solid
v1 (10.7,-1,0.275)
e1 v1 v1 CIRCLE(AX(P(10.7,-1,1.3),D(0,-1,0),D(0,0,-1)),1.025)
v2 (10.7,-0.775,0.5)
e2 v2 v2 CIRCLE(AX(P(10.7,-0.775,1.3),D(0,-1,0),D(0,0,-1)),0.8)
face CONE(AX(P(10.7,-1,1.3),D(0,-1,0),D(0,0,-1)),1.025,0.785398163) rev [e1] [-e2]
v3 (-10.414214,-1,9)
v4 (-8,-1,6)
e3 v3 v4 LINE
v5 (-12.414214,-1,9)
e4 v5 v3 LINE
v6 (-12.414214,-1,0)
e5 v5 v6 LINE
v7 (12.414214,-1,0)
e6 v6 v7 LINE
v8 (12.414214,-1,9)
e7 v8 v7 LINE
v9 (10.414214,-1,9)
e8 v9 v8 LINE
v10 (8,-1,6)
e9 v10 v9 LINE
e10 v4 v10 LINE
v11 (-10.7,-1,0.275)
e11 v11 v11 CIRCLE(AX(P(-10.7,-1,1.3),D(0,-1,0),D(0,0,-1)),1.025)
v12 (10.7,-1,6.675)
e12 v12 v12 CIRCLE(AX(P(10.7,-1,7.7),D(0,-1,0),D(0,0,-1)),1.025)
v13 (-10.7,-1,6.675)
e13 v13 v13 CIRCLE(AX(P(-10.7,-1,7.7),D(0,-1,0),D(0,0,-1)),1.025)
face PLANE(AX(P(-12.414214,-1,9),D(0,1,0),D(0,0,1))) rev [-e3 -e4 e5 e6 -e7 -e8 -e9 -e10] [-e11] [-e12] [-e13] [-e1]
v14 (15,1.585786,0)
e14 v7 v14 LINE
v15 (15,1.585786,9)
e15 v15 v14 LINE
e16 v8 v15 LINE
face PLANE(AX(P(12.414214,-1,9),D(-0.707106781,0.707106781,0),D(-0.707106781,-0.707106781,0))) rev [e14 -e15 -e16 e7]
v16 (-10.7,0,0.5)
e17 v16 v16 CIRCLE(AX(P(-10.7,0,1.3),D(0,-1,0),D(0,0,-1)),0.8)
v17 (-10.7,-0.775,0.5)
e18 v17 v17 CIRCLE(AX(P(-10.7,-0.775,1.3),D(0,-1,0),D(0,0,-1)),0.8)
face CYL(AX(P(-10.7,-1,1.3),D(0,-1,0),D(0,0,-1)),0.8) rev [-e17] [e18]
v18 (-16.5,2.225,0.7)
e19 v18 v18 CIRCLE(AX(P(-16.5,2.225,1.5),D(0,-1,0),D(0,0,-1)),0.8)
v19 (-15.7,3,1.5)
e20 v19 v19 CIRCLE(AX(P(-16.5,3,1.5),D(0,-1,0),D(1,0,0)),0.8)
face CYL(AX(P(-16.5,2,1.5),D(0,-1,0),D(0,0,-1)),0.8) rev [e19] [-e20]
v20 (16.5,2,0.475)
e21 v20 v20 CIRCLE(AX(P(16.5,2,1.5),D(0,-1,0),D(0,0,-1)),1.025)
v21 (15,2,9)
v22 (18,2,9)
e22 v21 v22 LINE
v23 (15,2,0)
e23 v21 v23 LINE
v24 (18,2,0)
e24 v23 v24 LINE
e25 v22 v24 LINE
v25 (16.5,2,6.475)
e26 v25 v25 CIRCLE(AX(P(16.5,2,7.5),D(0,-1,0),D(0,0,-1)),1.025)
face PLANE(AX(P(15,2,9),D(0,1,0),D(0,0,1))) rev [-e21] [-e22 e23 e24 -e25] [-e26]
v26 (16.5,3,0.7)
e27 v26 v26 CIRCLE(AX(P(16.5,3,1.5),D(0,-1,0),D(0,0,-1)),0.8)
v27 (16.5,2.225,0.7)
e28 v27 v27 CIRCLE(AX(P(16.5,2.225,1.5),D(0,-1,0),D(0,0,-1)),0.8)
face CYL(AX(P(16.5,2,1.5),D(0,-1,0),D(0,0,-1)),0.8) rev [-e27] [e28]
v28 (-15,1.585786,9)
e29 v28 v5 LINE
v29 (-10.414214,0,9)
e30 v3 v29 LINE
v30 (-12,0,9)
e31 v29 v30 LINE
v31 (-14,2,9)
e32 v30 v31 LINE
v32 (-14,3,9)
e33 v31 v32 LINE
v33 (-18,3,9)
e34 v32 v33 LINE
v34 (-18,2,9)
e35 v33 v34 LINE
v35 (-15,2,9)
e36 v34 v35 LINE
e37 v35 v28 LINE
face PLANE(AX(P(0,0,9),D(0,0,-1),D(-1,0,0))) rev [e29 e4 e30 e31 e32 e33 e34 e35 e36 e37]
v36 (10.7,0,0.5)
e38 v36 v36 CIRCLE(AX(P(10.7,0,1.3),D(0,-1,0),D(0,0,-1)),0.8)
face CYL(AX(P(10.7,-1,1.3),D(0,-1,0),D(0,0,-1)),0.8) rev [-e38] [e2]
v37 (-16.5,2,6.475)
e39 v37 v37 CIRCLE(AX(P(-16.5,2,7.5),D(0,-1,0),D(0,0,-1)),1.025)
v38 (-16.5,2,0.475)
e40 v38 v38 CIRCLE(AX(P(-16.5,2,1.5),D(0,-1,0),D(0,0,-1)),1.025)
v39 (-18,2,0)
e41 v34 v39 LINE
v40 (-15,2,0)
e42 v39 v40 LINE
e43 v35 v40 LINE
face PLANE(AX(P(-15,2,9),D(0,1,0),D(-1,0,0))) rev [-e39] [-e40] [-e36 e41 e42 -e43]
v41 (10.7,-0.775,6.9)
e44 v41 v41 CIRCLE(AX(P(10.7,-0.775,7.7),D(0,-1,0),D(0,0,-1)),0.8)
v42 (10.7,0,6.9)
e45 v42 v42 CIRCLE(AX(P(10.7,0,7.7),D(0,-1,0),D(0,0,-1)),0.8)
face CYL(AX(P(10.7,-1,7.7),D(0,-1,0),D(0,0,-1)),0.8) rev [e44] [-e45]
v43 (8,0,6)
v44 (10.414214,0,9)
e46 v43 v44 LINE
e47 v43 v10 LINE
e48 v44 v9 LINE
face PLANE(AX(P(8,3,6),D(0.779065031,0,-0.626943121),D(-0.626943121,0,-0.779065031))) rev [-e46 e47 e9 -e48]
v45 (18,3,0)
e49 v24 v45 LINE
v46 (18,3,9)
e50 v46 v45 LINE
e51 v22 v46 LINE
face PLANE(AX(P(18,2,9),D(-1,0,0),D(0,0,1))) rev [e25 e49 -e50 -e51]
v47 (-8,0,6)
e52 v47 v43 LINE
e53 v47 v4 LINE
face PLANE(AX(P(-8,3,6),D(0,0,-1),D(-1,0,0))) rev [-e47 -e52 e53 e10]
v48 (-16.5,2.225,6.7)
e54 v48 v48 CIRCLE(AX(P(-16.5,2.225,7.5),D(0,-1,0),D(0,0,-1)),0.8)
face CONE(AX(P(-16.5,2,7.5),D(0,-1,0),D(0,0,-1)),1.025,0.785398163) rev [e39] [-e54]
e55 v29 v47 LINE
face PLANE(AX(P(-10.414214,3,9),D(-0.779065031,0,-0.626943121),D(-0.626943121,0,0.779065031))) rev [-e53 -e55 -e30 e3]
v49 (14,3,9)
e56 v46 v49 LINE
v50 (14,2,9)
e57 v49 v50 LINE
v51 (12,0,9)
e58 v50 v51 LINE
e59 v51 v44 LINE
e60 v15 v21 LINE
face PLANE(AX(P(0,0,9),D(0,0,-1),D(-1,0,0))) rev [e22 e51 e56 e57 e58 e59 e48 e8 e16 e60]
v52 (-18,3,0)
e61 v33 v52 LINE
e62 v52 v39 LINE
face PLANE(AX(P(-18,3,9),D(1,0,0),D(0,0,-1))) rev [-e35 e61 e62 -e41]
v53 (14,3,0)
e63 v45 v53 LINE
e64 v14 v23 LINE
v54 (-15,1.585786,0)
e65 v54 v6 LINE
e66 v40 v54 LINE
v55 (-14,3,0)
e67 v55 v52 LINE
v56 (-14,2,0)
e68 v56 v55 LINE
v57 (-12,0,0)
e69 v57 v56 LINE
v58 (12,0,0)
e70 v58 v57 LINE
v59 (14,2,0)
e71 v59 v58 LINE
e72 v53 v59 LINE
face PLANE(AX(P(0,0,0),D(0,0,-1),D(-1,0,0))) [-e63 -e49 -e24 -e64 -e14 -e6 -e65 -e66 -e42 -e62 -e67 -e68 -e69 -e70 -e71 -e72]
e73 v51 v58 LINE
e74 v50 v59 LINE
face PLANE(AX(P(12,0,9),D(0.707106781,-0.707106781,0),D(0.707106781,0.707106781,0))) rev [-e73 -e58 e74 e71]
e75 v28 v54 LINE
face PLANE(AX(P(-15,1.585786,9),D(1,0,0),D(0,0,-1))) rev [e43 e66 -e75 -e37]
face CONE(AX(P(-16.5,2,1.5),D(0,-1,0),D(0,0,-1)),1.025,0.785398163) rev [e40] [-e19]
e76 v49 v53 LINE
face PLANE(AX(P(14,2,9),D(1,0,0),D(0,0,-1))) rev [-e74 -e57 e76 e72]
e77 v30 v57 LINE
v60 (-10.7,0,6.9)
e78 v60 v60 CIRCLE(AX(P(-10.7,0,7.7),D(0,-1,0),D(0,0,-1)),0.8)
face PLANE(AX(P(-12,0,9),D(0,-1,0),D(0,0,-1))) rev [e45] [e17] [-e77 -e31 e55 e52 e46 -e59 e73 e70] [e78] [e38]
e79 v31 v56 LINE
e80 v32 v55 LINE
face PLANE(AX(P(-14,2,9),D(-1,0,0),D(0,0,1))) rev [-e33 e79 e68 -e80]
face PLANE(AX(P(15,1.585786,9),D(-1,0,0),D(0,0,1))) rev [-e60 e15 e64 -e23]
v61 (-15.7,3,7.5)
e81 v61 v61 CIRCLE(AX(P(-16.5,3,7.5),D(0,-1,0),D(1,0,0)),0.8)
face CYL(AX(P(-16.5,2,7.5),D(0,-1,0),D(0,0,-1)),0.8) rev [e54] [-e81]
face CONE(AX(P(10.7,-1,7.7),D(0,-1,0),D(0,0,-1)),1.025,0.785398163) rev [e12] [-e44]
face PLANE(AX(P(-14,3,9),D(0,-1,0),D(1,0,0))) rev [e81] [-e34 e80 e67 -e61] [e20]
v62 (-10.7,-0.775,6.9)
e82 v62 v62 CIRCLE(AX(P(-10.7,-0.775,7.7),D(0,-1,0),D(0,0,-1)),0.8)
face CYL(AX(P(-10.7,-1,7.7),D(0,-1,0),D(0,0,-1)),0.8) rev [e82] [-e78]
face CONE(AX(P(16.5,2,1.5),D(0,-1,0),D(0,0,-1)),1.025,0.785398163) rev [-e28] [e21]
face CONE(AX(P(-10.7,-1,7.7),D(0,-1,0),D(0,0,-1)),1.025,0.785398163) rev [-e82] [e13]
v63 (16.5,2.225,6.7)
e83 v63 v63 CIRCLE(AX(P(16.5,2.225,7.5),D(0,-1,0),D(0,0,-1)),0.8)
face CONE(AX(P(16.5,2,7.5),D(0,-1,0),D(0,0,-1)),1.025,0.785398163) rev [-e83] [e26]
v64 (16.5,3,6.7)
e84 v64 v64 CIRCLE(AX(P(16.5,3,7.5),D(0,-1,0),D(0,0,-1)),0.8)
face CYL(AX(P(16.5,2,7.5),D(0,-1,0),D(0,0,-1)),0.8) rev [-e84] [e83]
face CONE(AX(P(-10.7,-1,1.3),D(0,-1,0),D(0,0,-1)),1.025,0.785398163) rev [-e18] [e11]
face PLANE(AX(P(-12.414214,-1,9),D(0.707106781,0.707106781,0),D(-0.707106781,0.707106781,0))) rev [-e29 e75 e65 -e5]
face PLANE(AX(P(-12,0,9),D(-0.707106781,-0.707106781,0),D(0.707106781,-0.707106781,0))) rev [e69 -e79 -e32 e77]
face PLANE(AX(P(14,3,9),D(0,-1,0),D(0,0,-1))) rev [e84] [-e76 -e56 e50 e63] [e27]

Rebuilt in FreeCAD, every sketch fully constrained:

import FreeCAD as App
import Part
import Sketcher
from FreeCAD import Vector
Q = App.Units.Quantity


def add_polygon(sketch, points):
    """Adds a closed chain of lines whose ends are joined by coincident constraints."""
    first, n = sketch.GeometryCount, len(points)
    for a, b in zip(points, points[1:] + points[:1]):
        sketch.addGeometry(Part.LineSegment(App.Vector(*a, 0), App.Vector(*b, 0)), False)
    for i in range(n):
        sketch.addConstraint(Sketcher.Constraint("Coincident", first + i, 2, first + (i + 1) % n, 1))

doc = App.newDocument("Part")
body = doc.addObject("PartDesign::Body", "Body")

sketch1 = doc.addObject("Sketcher::SketchObject", "Sketch")
body.addObject(sketch1)
sketch1.AttachmentSupport = (doc.XY_Plane, [""])
sketch1.MapMode = "FlatFace"
add_polygon(sketch1, [(12, 0), (-12, 0), (-14, 2), (-14, 3), (-18, 3), (-18, 2), (-15, 2), (-15, 1.59), (-12.41, -1), (12.41, -1), (15, 1.59), (15, 2), (18, 2), (18, 3), (14, 3), (14, 2)])
sketch1.addConstraint(Sketcher.Constraint("Horizontal", 0))
sketch1.addConstraint(Sketcher.Constraint("Vertical", 2))
sketch1.addConstraint(Sketcher.Constraint("Horizontal", 3))
sketch1.addConstraint(Sketcher.Constraint("Vertical", 4))
sketch1.addConstraint(Sketcher.Constraint("Horizontal", 5))
sketch1.addConstraint(Sketcher.Constraint("Vertical", 6))
sketch1.addConstraint(Sketcher.Constraint("Horizontal", 8))
sketch1.addConstraint(Sketcher.Constraint("Vertical", 10))
sketch1.addConstraint(Sketcher.Constraint("Horizontal", 11))
sketch1.addConstraint(Sketcher.Constraint("Vertical", 12))
sketch1.addConstraint(Sketcher.Constraint("Horizontal", 13))
sketch1.addConstraint(Sketcher.Constraint("Vertical", 14))
sketch1.addConstraint(Sketcher.Constraint("Symmetric", 0, 2, 15, 2, -1, 1))
sketch1.addConstraint(Sketcher.Constraint("Symmetric", 6, 2, 9, 2, -2))
sketch1.addConstraint(Sketcher.Constraint("Symmetric", 4, 2, 11, 2, -2))
sketch1.addConstraint(Sketcher.Constraint("Symmetric", 2, 2, 13, 2, -2))
sketch1.addConstraint(Sketcher.Constraint("Parallel", 1, 7))
sketch1.addConstraint(Sketcher.Constraint("Perpendicular", 7, 9))
sketch1.addConstraint(Sketcher.Constraint("Parallel", 9, 15))
sketch1.addConstraint(Sketcher.Constraint("Horizontal", 1, 2, 4, 2))
sketch1.addConstraint(Sketcher.Constraint("Horizontal", 11, 2, 14, 2))
sketch1.addConstraint(Sketcher.Constraint("DistanceX", 0, 2, 0, 1, 24.0))
sketch1.addConstraint(Sketcher.Constraint("DistanceX", 3, 2, 3, 1, 4.0))
sketch1.addConstraint(Sketcher.Constraint("DistanceX", 5, 1, 5, 2, 3.0))
sketch1.addConstraint(Sketcher.Constraint("DistanceY", 2, 1, 2, 2, 1.0))
sketch1.addConstraint(Sketcher.Constraint("DistanceX", 1, 2, -1, 1, 14.0))
sketch1.addConstraint(Sketcher.Constraint("DistanceY", 7, 2, -1, 1, 1.0))
sketch1.addConstraint(Sketcher.Constraint("DistanceX", 8, 1, 8, 2, 24.828427))
pad1 = doc.addObject("PartDesign::Pad", "Pad")
body.addObject(pad1)
pad1.Profile = sketch1
pad1.Length = 9

sketch2 = doc.addObject("Sketcher::SketchObject", "Sketch001")
body.addObject(sketch2)
sketch2.AttachmentSupport = (doc.XZ_Plane, [""])
sketch2.MapMode = "FlatFace"
sketch2.AttachmentOffset = App.Placement(Vector(0, 0, 1), App.Rotation())
add_polygon(sketch2, [(-10.4, 9), (-8, 6), (8, 6), (10.4, 9)])
sketch2.addConstraint(Sketcher.Constraint("Horizontal", 1))
sketch2.addConstraint(Sketcher.Constraint("Horizontal", 3))
sketch2.addConstraint(Sketcher.Constraint("Equal", 0, 2))
sketch2.addConstraint(Sketcher.Constraint("DistanceX", 1, 1, 1, 2, 16.0))
sketch2.addConstraint(Sketcher.Constraint("DistanceX", 0, 2, -1, 1, 8.0))
sketch2.addConstraint(Sketcher.Constraint("DistanceY", -1, 1, 0, 2, 6.0))
sketch2.addConstraint(Sketcher.Constraint("DistanceY", -1, 1, 2, 2, 9.0))
sketch2.addConstraint(Sketcher.Constraint("Distance", 0, 3.85077))
pocket1 = doc.addObject("PartDesign::Pocket", "Pocket")
body.addObject(pocket1)
pocket1.Profile = sketch2
pocket1.Type = "ThroughAll"

sketch3 = doc.addObject("Sketcher::SketchObject", "Sketch002")
body.addObject(sketch3)
sketch3.AttachmentSupport = (doc.YZ_Plane, [""])
sketch3.MapMode = "FlatFace"
sketch3.AttachmentOffset = App.Placement(Vector(0, 0, -16.5), App.Rotation())
add_polygon(sketch3, [(3, 7.5), (2, 7.5), (2, 6.47), (2.23, 6.7), (3, 6.7)])
sketch3.addGeometry(Part.LineSegment(Vector(2, 7.5, 0), Vector(3, 7.5, 0)), True)
sketch3.addConstraint(Sketcher.Constraint("Horizontal", 0))
sketch3.addConstraint(Sketcher.Constraint("Vertical", 1))
sketch3.addConstraint(Sketcher.Constraint("Horizontal", 3))
sketch3.addConstraint(Sketcher.Constraint("Vertical", 4))
sketch3.addConstraint(Sketcher.Constraint("Horizontal", 5))
sketch3.addConstraint(Sketcher.Constraint("Coincident", 5, 1, 0, 2))
sketch3.addConstraint(Sketcher.Constraint("Vertical", 3, 2, 5, 2))
sketch3.addConstraint(Sketcher.Constraint("DistanceX", 0, 2, 0, 1, 1.0))
sketch3.addConstraint(Sketcher.Constraint("Angle", 2, Q("45 deg")))
sketch3.addConstraint(Sketcher.Constraint("DistanceY", 4, 1, 4, 2, 0.8))
sketch3.addConstraint(Sketcher.Constraint("DistanceX", -1, 1, 0, 2, 2.0))
sketch3.addConstraint(Sketcher.Constraint("DistanceY", -1, 1, 0, 2, 7.5))
sketch3.addConstraint(Sketcher.Constraint("DistanceX", 3, 1, 3, 2, 0.775))
groove = doc.addObject("PartDesign::Groove", "Groove")
body.addObject(groove)
groove.Profile = sketch3
groove.ReferenceAxis = (sketch3, ["Axis0"])
groove.Angle = 360
doc.recompute()

linearpattern = doc.addObject("PartDesign::LinearPattern", "LinearPattern")
body.addObject(linearpattern)
linearpattern.Originals = [groove]
linearpattern.Direction = (doc.Z_Axis, [""])
linearpattern.Mode = "offset"
linearpattern.Offset = 6
linearpattern.Occurrences = 2
linearpattern.Reversed = True
body.Tip = linearpattern
doc.recompute()

linearpattern2 = doc.addObject("PartDesign::LinearPattern", "LinearPattern001")
body.addObject(linearpattern2)
linearpattern2.Originals = [groove]
linearpattern2.Direction = (doc.X_Axis, [""])
linearpattern2.Mode = "offset"
linearpattern2.Offset = 33
linearpattern2.Occurrences = 2
body.Tip = linearpattern2
doc.recompute()

datumline = doc.addObject("PartDesign::Line", "DatumLine")
body.addObject(datumline)
datumline.Placement = App.Placement(Vector(0, 0, 0), App.Rotation(Vector(0, 0, 1), Vector(0.98386991, 0, -0.178885438)))
linearpattern3 = doc.addObject("PartDesign::LinearPattern", "LinearPattern002")
body.addObject(linearpattern3)
linearpattern3.Originals = [groove]
linearpattern3.Direction = (datumline, [""])
linearpattern3.Mode = "offset"
linearpattern3.Offset = 33.54102
linearpattern3.Occurrences = 2
body.Tip = linearpattern3

sketch4 = doc.addObject("Sketcher::SketchObject", "Sketch003")
body.addObject(sketch4)
sketch4.AttachmentSupport = (doc.YZ_Plane, [""])
sketch4.MapMode = "FlatFace"
sketch4.AttachmentOffset = App.Placement(Vector(0, 0, -10.7), App.Rotation())
add_polygon(sketch4, [(0, 7.7), (-1, 7.7), (-1, 6.67), (-0.78, 6.9), (0, 6.9)])
sketch4.addGeometry(Part.LineSegment(Vector(-1, 7.7, 0), Vector(0, 7.7, 0)), True)
sketch4.addConstraint(Sketcher.Constraint("Horizontal", 0))
sketch4.addConstraint(Sketcher.Constraint("Vertical", 1))
sketch4.addConstraint(Sketcher.Constraint("Horizontal", 3))
sketch4.addConstraint(Sketcher.Constraint("Vertical", 4))
sketch4.addConstraint(Sketcher.Constraint("Horizontal", 5))
sketch4.addConstraint(Sketcher.Constraint("Coincident", 5, 1, 0, 2))
sketch4.addConstraint(Sketcher.Constraint("PointOnObject", 3, 2, -2))
sketch4.addConstraint(Sketcher.Constraint("PointOnObject", 5, 2, -2))
sketch4.addConstraint(Sketcher.Constraint("DistanceX", 0, 2, 0, 1, 1.0))
sketch4.addConstraint(Sketcher.Constraint("Angle", 2, Q("45 deg")))
sketch4.addConstraint(Sketcher.Constraint("DistanceY", 4, 1, 4, 2, 0.8))
sketch4.addConstraint(Sketcher.Constraint("DistanceY", -1, 1, 0, 2, 7.7))
sketch4.addConstraint(Sketcher.Constraint("DistanceX", 3, 1, 3, 2, 0.775))
groove2 = doc.addObject("PartDesign::Groove", "Groove001")
body.addObject(groove2)
groove2.Profile = sketch4
groove2.ReferenceAxis = (sketch4, ["Axis0"])
groove2.Angle = 360
doc.recompute()

linearpattern4 = doc.addObject("PartDesign::LinearPattern", "LinearPattern003")
body.addObject(linearpattern4)
linearpattern4.Originals = [groove2]
linearpattern4.Direction = (doc.Z_Axis, [""])
linearpattern4.Mode = "offset"
linearpattern4.Offset = 6.4
linearpattern4.Occurrences = 2
linearpattern4.Reversed = True
body.Tip = linearpattern4
doc.recompute()

datumline2 = doc.addObject("PartDesign::Line", "DatumLine001")
body.addObject(datumline2)
datumline2.Placement = App.Placement(Vector(0, 0, 0), App.Rotation(Vector(0, 0, 1), Vector(0.958072372, 0, -0.286526317)))
linearpattern5 = doc.addObject("PartDesign::LinearPattern", "LinearPattern004")
body.addObject(linearpattern5)
linearpattern5.Originals = [groove2]
linearpattern5.Direction = (datumline2, [""])
linearpattern5.Mode = "offset"
linearpattern5.Offset = 22.336517
linearpattern5.Occurrences = 2
body.Tip = linearpattern5
doc.recompute()

linearpattern6 = doc.addObject("PartDesign::LinearPattern", "LinearPattern005")
body.addObject(linearpattern6)
linearpattern6.Originals = [groove2]
linearpattern6.Direction = (doc.X_Axis, [""])
linearpattern6.Mode = "offset"
linearpattern6.Offset = 21.4
linearpattern6.Occurrences = 2
body.Tip = linearpattern6

doc.recompute()
